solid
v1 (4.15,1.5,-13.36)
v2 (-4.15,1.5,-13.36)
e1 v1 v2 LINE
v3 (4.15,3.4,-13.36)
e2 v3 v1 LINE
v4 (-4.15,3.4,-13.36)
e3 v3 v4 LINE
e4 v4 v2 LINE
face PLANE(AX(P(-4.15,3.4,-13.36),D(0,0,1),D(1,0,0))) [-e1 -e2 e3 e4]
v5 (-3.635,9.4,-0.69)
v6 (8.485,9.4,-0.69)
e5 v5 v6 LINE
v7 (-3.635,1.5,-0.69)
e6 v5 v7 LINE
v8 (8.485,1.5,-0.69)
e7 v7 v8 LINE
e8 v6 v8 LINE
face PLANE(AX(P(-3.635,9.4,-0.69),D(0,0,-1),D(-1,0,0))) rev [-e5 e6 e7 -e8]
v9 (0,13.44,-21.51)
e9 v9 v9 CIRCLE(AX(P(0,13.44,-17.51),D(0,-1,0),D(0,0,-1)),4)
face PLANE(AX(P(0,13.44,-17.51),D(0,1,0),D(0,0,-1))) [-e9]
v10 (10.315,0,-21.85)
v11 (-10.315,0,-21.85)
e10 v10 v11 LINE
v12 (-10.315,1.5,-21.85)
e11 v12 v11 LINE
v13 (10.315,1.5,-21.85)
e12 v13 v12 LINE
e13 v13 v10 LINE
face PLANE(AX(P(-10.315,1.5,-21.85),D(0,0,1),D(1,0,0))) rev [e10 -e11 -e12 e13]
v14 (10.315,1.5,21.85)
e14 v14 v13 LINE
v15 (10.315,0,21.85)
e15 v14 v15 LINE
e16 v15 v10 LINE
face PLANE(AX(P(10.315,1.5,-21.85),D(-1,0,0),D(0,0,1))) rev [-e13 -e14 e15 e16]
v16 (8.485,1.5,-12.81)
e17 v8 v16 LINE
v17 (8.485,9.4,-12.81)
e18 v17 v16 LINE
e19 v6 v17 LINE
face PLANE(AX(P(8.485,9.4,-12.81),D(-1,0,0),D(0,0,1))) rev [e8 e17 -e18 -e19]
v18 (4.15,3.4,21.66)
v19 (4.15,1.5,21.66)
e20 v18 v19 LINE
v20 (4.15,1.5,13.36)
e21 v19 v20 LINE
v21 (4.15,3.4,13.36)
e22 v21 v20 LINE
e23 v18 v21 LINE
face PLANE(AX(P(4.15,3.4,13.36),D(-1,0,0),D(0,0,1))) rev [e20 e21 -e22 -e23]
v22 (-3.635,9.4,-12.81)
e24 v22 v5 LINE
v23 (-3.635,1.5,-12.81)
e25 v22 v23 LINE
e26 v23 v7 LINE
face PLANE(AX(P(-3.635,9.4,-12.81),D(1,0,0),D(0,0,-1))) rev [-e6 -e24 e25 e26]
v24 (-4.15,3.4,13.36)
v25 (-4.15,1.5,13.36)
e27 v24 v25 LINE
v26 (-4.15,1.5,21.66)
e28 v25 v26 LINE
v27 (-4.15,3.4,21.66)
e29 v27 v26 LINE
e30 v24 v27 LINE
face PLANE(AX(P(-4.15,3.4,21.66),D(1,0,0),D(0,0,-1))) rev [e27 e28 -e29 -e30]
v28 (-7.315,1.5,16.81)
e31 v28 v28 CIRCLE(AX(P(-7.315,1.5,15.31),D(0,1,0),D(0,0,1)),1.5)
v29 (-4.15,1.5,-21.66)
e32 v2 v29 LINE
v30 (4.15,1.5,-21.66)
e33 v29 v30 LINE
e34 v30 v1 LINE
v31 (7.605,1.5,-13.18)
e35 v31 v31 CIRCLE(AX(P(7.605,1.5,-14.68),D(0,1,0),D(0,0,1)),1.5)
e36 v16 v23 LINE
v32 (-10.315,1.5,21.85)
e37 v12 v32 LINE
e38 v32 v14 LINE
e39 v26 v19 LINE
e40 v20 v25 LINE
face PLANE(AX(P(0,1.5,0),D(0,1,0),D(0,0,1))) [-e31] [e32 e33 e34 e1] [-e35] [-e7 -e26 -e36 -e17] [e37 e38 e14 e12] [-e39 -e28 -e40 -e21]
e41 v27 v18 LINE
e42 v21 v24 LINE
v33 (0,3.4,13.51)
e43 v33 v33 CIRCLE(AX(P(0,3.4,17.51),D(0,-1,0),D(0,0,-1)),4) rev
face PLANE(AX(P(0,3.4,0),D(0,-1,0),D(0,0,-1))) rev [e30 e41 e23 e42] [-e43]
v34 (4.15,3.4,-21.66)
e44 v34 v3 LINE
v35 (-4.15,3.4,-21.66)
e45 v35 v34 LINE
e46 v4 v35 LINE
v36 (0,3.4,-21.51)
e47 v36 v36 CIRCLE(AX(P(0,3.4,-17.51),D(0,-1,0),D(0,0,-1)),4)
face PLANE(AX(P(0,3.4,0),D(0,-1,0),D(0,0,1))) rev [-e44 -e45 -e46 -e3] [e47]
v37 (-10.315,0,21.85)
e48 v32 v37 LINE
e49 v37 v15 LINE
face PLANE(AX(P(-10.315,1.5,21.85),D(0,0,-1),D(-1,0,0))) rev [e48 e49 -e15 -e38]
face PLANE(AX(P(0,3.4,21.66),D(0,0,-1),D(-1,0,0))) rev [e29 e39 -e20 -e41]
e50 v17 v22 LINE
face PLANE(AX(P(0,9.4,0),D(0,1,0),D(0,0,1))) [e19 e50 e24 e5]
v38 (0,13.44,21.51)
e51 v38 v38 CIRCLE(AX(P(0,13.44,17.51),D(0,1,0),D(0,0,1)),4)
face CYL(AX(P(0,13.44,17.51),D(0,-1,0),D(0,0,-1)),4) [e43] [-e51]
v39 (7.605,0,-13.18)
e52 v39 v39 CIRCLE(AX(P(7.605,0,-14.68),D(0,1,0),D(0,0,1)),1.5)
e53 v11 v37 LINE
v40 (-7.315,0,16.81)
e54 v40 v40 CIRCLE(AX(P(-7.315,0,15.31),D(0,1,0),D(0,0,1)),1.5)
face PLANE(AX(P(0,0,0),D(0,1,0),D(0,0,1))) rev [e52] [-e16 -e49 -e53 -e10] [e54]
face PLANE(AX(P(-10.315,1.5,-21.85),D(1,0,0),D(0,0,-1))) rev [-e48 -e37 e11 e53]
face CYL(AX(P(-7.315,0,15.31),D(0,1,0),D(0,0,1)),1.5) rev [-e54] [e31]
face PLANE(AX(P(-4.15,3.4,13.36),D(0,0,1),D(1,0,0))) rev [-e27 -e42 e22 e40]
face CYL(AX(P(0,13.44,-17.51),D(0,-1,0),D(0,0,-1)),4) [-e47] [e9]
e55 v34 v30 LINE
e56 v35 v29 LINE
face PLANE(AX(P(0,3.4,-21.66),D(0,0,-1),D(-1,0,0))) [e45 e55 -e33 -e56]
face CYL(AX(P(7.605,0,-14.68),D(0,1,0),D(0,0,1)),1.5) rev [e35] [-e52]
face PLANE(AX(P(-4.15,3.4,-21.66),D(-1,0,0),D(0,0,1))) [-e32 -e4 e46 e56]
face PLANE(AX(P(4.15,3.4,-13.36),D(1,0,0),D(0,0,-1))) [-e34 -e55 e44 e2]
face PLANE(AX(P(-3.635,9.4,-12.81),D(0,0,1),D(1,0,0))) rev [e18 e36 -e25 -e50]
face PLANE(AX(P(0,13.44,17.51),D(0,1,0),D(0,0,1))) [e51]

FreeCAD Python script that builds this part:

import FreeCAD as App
import Part
import Sketcher
from FreeCAD import Vector

doc = App.newDocument("Part")
body = doc.addObject("PartDesign::Body", "Body")

sketch1 = body.newObject("Sketcher::SketchObject", "Sketch")
sketch1.AttachmentSupport = (doc.getObject("XZ_Plane"), [""])
sketch1.MapMode = "FlatFace"
sketch1.addGeometry([
    Part.LineSegment(Vector(-10, -22, 0), Vector(-10, 22, 0)),
    Part.LineSegment(Vector(-10, 22, 0), Vector(10, 22, 0)),
    Part.LineSegment(Vector(10, 22, 0), Vector(10, -22, 0)),
    Part.LineSegment(Vector(10, -22, 0), Vector(-10, -22, 0)),
], False)
sketch1.addConstraint([
    Sketcher.Constraint("Coincident", 0, 2, 1, 1),
    Sketcher.Constraint("Coincident", 1, 2, 2, 1),
    Sketcher.Constraint("Coincident", 2, 2, 3, 1),
    Sketcher.Constraint("Coincident", 3, 2, 0, 1),
    Sketcher.Constraint("Vertical", 0),
    Sketcher.Constraint("Horizontal", 1),
    Sketcher.Constraint("Vertical", 2),
    Sketcher.Constraint("Horizontal", 3),
    Sketcher.Constraint("Symmetric", 0, 2, 2, 2, -1, 1),
    Sketcher.Constraint("DistanceY", 0, 1, 0, 2, 43.7),
    Sketcher.Constraint("DistanceX", 1, 1, 1, 2, 20.63),
])
pad1 = body.newObject("PartDesign::Pad", "Pad")
pad1.Profile = sketch1
pad1.Length = 1.5
pad1.Reversed = True

sketch2 = body.newObject("Sketcher::SketchObject", "Sketch001")
sketch2.AttachmentSupport = (doc.getObject("XZ_Plane"), [""])
sketch2.MapMode = "FlatFace"
sketch2.AttachmentOffset = App.Placement(Vector(0, 0, -1.5), App.Rotation())
sketch2.addGeometry([
    Part.Circle(Vector(7.6, -14.7, 0), Vector(0, 0, 1), 1.5),
    Part.Circle(Vector(-7.3, 15.3, 0), Vector(0, 0, 1), 1.5),
], False)
sketch2.addConstraint([
    Sketcher.Constraint("Equal", 0, 1),
    Sketcher.Constraint("Diameter", 0, 3.0),
    Sketcher.Constraint("DistanceY", 0, 3, -1, 1, 14.68),
    Sketcher.Constraint("DistanceY", -1, 1, 1, 3, 15.31),
    Sketcher.Constraint("DistanceX", 1, 3, 0, 3, 14.92),
    Sketcher.Constraint("DistanceX", -1, 1, 0, 3, 7.605),
])
pocket1 = body.newObject("PartDesign::Pocket", "Pocket")
pocket1.Profile = sketch2
pocket1.Length = 1.5
pocket1.Reversed = True

sketch3 = body.newObject("Sketcher::SketchObject", "Sketch002")
sketch3.AttachmentSupport = (doc.getObject("XZ_Plane"), [""])
sketch3.MapMode = "FlatFace"
sketch3.AttachmentOffset = App.Placement(Vector(0, 0, -1.5), App.Rotation())
sketch3.addGeometry([
    Part.LineSegment(Vector(-4, 22, 0), Vector(4, 22, 0)),
    Part.LineSegment(Vector(4, 22, 0), Vector(4, 13, 0)),
    Part.LineSegment(Vector(4, 13, 0), Vector(-4, 13, 0)),
    Part.LineSegment(Vector(-4, 13, 0), Vector(-4, 22, 0)),
], False)
sketch3.addConstraint([
    Sketcher.Constraint("Coincident", 0, 2, 1, 1),
    Sketcher.Constraint("Coincident", 1, 2, 2, 1),
    Sketcher.Constraint("Coincident", 2, 2, 3, 1),
    Sketcher.Constraint("Coincident", 3, 2, 0, 1),
    Sketcher.Constraint("Horizontal", 0),
    Sketcher.Constraint("Vertical", 1),
    Sketcher.Constraint("Horizontal", 2),
    Sketcher.Constraint("Vertical", 3),
    Sketcher.Constraint("Equal", 2, 1),
    Sketcher.Constraint("DistanceX", 0, 1, 0, 2, 8.3),
    Sketcher.Constraint("DistanceX", -1, 1, 0, 2, 4.15),
    Sketcher.Constraint("DistanceY", -1, 1, 0, 2, 21.66),
])
pad2 = body.newObject("PartDesign::Pad", "Pad001")
pad2.Profile = sketch3
pad2.Length = 1.9
pad2.Reversed = True

sketch4 = body.newObject("Sketcher::SketchObject", "Sketch003")
sketch4.AttachmentSupport = (doc.getObject("XZ_Plane"), [""])
sketch4.MapMode = "FlatFace"
sketch4.AttachmentOffset = App.Placement(Vector(0, 0, -3.4), App.Rotation())
sketch4.addGeometry(Part.Circle(Vector(0, 17.5, 0), Vector(0, 0, 1), 4), False)
sketch4.addConstraint([
    Sketcher.Constraint("PointOnObject", 0, 3, -2),
    Sketcher.Constraint("Diameter", 0, 8.0),
    Sketcher.Constraint("DistanceY", -1, 1, 0, 3, 17.51),
])
pad3 = body.newObject("PartDesign::Pad", "Pad002")
pad3.Profile = sketch4
pad3.Length = 10.04
pad3.Reversed = True
doc.recompute()

mirrored = body.newObject("PartDesign::Mirrored", "Mirrored")
mirrored.Originals = [pad2, pad3]
mirrored.MirrorPlane = (doc.getObject("XY_Plane"), [""])
body.Tip = mirrored

sketch5 = body.newObject("Sketcher::SketchObject", "Sketch004")
sketch5.AttachmentSupport = (doc.getObject("XZ_Plane"), [""])
sketch5.MapMode = "FlatFace"
sketch5.AttachmentOffset = App.Placement(Vector(0, 0, -1.5), App.Rotation())
sketch5.addGeometry([
    Part.LineSegment(Vector(-4, -13, 0), Vector(-4, -1, 0)),
    Part.LineSegment(Vector(-4, -1, 0), Vector(8, -1, 0)),
    Part.LineSegment(Vector(8, -1, 0), Vector(8, -13, 0)),
    Part.LineSegment(Vector(8, -13, 0), Vector(-4, -13, 0)),
], False)
sketch5.addConstraint([
    Sketcher.Constraint("Coincident", 0, 2, 1, 1),
    Sketcher.Constraint("Coincident", 1, 2, 2, 1),
    Sketcher.Constraint("Coincident", 2, 2, 3, 1),
    Sketcher.Constraint("Coincident", 3, 2, 0, 1),
    Sketcher.Constraint("Vertical", 0),
    Sketcher.Constraint("Horizontal", 1),
    Sketcher.Constraint("Vertical", 2),
    Sketcher.Constraint("Horizontal", 3),
    Sketcher.Constraint("Equal", 3, 0),
    Sketcher.Constraint("DistanceX", 1, 1, 1, 2, 12.12),
    Sketcher.Constraint("DistanceY", 0, 2, -1, 1, 0.69),
    Sketcher.Constraint("DistanceX", 0, 2, -1, 1, 3.635),
])
pad4 = body.newObject("PartDesign::Pad", "Pad003")
pad4.Profile = sketch5
pad4.Length = 7.9
pad4.Reversed = True

doc.recompute()
